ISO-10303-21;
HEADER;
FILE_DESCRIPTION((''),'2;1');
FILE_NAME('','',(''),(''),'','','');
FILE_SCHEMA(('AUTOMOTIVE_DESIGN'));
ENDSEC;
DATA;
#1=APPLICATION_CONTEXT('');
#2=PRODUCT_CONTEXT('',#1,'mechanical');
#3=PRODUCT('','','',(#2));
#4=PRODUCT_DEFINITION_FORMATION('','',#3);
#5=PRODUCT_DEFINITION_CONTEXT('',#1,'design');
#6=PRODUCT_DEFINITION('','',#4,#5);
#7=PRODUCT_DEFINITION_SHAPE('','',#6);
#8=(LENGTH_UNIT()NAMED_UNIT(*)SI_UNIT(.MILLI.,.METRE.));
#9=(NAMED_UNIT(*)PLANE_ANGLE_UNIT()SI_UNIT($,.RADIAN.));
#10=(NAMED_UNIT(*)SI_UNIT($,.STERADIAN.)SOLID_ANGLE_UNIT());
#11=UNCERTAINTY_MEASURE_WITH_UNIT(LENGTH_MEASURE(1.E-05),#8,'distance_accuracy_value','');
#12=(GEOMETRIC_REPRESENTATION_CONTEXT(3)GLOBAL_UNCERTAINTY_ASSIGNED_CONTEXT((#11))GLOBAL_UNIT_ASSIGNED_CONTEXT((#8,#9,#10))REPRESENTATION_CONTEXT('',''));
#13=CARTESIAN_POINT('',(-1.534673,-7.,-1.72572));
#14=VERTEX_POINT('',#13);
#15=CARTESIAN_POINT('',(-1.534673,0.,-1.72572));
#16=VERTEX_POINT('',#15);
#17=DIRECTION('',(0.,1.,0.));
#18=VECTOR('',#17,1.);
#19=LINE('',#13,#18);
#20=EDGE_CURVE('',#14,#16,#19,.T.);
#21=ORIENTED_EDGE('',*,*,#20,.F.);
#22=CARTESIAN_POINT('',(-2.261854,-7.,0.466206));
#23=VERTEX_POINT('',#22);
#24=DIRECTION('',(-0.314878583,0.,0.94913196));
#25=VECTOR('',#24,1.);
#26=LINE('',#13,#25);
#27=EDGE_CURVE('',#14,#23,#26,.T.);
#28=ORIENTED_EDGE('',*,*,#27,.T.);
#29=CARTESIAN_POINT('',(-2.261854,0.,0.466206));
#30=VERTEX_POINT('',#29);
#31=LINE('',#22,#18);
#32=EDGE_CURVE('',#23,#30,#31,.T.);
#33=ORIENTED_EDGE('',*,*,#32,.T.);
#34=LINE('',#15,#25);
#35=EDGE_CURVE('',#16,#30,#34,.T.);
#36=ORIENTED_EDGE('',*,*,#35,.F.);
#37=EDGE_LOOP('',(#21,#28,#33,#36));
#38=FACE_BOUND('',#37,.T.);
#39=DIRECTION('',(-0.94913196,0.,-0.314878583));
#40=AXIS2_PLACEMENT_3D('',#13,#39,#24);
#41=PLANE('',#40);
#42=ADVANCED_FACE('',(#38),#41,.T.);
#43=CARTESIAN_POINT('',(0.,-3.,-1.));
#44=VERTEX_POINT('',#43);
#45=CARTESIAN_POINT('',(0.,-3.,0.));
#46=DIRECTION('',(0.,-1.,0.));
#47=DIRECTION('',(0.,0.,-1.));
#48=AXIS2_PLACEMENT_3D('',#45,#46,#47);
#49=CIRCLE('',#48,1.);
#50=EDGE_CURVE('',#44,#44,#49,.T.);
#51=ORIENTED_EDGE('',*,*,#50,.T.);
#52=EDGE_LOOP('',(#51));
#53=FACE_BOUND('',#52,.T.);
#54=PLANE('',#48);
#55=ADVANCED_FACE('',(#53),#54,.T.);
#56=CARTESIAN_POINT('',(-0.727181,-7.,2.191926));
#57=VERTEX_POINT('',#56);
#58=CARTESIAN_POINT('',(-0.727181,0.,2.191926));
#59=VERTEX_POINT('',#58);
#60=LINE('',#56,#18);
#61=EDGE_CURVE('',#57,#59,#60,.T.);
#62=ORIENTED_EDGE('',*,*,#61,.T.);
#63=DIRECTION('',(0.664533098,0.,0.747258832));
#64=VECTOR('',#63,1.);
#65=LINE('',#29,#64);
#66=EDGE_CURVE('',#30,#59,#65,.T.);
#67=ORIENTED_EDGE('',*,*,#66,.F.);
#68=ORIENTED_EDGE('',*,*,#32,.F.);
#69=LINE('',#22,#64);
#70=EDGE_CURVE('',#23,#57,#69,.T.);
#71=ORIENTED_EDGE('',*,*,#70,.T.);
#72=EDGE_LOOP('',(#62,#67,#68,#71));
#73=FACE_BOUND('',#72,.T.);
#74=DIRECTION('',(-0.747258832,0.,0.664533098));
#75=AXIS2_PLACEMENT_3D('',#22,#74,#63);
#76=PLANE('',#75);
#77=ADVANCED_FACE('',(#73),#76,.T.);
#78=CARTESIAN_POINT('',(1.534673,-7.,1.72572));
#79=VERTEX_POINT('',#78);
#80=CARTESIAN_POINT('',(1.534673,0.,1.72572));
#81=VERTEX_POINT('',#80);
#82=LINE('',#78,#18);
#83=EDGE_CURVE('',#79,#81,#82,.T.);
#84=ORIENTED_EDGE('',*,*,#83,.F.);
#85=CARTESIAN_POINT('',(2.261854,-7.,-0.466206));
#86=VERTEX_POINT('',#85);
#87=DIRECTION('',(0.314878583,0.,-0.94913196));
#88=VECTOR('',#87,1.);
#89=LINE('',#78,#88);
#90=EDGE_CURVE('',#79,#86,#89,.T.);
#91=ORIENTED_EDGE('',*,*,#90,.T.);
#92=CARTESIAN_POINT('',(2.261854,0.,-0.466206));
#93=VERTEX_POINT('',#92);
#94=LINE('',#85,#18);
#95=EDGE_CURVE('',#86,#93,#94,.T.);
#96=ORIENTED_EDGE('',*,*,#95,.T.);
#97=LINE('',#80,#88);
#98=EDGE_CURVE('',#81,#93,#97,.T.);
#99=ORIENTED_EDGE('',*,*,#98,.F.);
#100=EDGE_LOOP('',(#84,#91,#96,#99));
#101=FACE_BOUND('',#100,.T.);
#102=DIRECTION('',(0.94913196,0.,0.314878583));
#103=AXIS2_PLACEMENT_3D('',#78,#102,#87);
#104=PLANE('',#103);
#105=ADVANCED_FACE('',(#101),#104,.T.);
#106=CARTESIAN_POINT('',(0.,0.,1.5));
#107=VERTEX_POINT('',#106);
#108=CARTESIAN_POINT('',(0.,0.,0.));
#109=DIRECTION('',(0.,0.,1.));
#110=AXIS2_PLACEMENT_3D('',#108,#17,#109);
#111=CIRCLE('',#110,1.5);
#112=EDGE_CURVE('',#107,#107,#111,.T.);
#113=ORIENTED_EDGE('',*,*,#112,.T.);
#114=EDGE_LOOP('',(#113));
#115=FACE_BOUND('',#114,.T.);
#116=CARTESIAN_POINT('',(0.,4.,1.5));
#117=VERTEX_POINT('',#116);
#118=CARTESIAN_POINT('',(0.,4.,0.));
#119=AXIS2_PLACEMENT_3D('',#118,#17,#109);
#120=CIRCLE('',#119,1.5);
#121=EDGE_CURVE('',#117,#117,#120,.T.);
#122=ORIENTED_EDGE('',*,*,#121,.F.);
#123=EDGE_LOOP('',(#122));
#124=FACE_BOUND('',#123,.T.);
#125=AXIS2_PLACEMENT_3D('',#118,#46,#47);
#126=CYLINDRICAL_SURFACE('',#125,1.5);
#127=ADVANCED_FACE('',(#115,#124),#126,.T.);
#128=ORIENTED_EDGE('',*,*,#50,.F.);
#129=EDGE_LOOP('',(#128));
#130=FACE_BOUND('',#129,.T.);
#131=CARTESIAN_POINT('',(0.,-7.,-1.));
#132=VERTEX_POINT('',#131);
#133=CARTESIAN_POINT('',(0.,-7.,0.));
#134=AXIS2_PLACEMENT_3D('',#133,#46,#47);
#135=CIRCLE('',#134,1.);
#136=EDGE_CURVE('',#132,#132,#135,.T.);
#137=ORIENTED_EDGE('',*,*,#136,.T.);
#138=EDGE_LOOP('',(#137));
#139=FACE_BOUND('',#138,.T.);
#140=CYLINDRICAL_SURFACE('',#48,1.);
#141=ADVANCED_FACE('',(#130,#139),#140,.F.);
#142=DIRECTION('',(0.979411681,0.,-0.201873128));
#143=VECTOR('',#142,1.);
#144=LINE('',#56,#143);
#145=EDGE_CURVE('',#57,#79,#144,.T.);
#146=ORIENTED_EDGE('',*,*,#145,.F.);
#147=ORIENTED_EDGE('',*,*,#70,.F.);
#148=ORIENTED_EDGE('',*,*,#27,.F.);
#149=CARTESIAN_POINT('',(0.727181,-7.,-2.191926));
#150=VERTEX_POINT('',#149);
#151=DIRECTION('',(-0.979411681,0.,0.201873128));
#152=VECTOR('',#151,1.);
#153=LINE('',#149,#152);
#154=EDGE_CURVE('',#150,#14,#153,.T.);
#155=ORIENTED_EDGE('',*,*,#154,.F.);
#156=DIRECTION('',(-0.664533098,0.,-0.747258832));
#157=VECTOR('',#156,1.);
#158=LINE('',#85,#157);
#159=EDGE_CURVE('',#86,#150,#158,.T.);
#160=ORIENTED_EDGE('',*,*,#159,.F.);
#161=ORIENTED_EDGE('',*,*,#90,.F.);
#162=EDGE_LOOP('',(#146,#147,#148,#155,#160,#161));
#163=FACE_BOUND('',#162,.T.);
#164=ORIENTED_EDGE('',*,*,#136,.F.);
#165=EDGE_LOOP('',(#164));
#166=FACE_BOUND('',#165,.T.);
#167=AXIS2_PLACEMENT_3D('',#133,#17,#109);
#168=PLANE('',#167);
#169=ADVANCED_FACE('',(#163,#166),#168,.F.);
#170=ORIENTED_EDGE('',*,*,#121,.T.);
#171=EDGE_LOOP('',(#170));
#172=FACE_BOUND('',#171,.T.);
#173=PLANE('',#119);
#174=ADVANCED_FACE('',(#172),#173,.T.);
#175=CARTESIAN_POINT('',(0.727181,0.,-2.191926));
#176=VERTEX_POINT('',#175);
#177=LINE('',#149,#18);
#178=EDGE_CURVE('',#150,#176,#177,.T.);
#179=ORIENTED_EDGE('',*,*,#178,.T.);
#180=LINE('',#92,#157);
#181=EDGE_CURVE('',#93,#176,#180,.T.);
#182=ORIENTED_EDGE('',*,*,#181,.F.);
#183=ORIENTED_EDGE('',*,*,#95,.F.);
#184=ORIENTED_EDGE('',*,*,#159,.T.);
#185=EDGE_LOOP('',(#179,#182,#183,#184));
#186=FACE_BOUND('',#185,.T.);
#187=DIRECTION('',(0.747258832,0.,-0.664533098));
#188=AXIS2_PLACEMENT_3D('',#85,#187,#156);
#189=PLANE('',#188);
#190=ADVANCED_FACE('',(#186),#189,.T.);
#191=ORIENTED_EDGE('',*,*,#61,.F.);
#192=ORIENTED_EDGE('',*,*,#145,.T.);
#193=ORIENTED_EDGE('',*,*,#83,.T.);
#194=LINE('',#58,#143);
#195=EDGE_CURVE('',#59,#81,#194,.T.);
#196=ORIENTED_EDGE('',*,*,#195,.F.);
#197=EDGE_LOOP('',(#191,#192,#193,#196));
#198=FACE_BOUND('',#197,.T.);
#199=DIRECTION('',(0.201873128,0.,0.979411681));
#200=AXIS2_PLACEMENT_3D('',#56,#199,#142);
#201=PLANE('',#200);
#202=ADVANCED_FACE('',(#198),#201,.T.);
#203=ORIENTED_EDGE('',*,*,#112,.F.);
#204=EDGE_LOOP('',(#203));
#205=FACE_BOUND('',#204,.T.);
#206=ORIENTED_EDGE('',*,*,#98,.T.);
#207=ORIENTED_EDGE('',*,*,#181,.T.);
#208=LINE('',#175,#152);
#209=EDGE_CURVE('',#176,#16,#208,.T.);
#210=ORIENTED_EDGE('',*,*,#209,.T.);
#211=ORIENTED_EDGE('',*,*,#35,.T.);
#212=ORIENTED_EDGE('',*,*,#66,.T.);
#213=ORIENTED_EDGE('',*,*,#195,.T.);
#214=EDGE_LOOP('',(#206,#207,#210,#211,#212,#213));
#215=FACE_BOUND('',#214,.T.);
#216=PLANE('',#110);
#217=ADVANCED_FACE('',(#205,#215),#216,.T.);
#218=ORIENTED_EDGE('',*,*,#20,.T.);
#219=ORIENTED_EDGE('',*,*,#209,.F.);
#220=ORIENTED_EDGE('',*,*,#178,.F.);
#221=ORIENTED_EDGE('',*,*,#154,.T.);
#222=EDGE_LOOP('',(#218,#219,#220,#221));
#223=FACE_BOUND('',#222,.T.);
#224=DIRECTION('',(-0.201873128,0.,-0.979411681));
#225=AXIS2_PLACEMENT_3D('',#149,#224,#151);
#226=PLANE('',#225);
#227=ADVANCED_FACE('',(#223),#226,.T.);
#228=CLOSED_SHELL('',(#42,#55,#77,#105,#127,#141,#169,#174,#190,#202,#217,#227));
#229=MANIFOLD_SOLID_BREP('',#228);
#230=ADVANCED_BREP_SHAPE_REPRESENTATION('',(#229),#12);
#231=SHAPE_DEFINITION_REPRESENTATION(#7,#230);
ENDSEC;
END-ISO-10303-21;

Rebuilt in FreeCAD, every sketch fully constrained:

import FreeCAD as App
import Part
import Sketcher
from FreeCAD import Vector


def add_polygon(sketch, points):
    """Adds a closed chain of lines whose ends are joined by coincident constraints."""
    first, n = sketch.GeometryCount, len(points)
    for a, b in zip(points, points[1:] + points[:1]):
        sketch.addGeometry(Part.LineSegment(App.Vector(*a, 0), App.Vector(*b, 0)), False)
    for i in range(n):
        sketch.addConstraint(Sketcher.Constraint("Coincident", first + i, 2, first + (i + 1) % n, 1))

doc = App.newDocument("Part")
params = doc.addObject("Spreadsheet::Sheet", "Params")
for row, (alias, value) in enumerate([
    ("sketch1_diameter", "3 mm"),
    ("pad1_length", "4 mm"),
    ("pad2_length", "7 mm"),
    ("sketch3_diameter", "2 mm"),
    ("pocket1_length", "4 mm"),
], start=1):
    params.set(f"A{row}", alias)
    params.set(f"B{row}", "=" + value)
    params.setAlias(f"B{row}", alias)

body = doc.addObject("PartDesign::Body", "Body")

# Sketch on XZ plane
sketch1 = body.newObject("Sketcher::SketchObject", "Sketch")
sketch1.AttachmentSupport = (doc.getObject("XZ_Plane"), [""])
sketch1.MapMode = "FlatFace"
sketch1.addGeometry(Part.Circle(Vector(0, 0, 0), Vector(0, 0, 1), 1.5), False)
sketch1.addConstraint([
    Sketcher.Constraint("Coincident", 0, 3, -1, 1),
    Sketcher.Constraint("Diameter", 0, 3.0),
])
sketch1.setExpression("Constraints[1]", "Params.sketch1_diameter")
pad1 = body.newObject("PartDesign::Pad", "Pad")
pad1.Profile = sketch1
pad1.setExpression("Length", "Params.pad1_length")
pad1.Reversed = True

# Sketch on XZ plane
sketch2 = body.newObject("Sketcher::SketchObject", "Sketch001")
sketch2.AttachmentSupport = (doc.getObject("XZ_Plane"), [""])
sketch2.MapMode = "FlatFace"
add_polygon(sketch2, [(1.5, 1.7), (2.3, -0.5), (0.7, -2.2), (-1.5, -1.7), (-2.3, 0.5), (-0.7, 2.2)])  # lines 0-5
sketch2.addConstraint([
    Sketcher.Constraint("Symmetric", 0, 2, 3, 2, -1, 1),
    Sketcher.Constraint("Symmetric", 1, 2, 4, 2, -1, 1),
    Sketcher.Constraint("Symmetric", 2, 2, 5, 2, -1, 1),
    Sketcher.Constraint("Equal", 0, 1),
    Sketcher.Constraint("Equal", 1, 2),
    Sketcher.Constraint("Distance", 0, 2.309401),
    Sketcher.Constraint("DistanceX", -1, 1, 1, 2, 0.727181),
    Sketcher.Constraint("DistanceY", 2, 2, -1, 1, 1.72572),
    Sketcher.Constraint("DistanceY", 1, 2, 0, 2, 1.72572),
])
pad2 = body.newObject("PartDesign::Pad", "Pad001")
pad2.Profile = sketch2
pad2.setExpression("Length", "Params.pad2_length")

# Sketch on XZ plane
sketch3 = body.newObject("Sketcher::SketchObject", "Sketch002")
sketch3.AttachmentSupport = (doc.getObject("XZ_Plane"), [""])
sketch3.MapMode = "FlatFace"
sketch3.AttachmentOffset = App.Placement(Vector(0, 0, 7), App.Rotation())
sketch3.addGeometry(Part.Circle(Vector(0, 0, 0), Vector(0, 0, 1), 1), False)
sketch3.addConstraint([
    Sketcher.Constraint("Coincident", 0, 3, -1, 1),
    Sketcher.Constraint("Diameter", 0, 2.0),
])
sketch3.setExpression("Constraints[1]", "Params.sketch3_diameter")
pocket1 = body.newObject("PartDesign::Pocket", "Pocket")
pocket1.Profile = sketch3
pocket1.setExpression("Length", "Params.pocket1_length")

doc.recompute()
